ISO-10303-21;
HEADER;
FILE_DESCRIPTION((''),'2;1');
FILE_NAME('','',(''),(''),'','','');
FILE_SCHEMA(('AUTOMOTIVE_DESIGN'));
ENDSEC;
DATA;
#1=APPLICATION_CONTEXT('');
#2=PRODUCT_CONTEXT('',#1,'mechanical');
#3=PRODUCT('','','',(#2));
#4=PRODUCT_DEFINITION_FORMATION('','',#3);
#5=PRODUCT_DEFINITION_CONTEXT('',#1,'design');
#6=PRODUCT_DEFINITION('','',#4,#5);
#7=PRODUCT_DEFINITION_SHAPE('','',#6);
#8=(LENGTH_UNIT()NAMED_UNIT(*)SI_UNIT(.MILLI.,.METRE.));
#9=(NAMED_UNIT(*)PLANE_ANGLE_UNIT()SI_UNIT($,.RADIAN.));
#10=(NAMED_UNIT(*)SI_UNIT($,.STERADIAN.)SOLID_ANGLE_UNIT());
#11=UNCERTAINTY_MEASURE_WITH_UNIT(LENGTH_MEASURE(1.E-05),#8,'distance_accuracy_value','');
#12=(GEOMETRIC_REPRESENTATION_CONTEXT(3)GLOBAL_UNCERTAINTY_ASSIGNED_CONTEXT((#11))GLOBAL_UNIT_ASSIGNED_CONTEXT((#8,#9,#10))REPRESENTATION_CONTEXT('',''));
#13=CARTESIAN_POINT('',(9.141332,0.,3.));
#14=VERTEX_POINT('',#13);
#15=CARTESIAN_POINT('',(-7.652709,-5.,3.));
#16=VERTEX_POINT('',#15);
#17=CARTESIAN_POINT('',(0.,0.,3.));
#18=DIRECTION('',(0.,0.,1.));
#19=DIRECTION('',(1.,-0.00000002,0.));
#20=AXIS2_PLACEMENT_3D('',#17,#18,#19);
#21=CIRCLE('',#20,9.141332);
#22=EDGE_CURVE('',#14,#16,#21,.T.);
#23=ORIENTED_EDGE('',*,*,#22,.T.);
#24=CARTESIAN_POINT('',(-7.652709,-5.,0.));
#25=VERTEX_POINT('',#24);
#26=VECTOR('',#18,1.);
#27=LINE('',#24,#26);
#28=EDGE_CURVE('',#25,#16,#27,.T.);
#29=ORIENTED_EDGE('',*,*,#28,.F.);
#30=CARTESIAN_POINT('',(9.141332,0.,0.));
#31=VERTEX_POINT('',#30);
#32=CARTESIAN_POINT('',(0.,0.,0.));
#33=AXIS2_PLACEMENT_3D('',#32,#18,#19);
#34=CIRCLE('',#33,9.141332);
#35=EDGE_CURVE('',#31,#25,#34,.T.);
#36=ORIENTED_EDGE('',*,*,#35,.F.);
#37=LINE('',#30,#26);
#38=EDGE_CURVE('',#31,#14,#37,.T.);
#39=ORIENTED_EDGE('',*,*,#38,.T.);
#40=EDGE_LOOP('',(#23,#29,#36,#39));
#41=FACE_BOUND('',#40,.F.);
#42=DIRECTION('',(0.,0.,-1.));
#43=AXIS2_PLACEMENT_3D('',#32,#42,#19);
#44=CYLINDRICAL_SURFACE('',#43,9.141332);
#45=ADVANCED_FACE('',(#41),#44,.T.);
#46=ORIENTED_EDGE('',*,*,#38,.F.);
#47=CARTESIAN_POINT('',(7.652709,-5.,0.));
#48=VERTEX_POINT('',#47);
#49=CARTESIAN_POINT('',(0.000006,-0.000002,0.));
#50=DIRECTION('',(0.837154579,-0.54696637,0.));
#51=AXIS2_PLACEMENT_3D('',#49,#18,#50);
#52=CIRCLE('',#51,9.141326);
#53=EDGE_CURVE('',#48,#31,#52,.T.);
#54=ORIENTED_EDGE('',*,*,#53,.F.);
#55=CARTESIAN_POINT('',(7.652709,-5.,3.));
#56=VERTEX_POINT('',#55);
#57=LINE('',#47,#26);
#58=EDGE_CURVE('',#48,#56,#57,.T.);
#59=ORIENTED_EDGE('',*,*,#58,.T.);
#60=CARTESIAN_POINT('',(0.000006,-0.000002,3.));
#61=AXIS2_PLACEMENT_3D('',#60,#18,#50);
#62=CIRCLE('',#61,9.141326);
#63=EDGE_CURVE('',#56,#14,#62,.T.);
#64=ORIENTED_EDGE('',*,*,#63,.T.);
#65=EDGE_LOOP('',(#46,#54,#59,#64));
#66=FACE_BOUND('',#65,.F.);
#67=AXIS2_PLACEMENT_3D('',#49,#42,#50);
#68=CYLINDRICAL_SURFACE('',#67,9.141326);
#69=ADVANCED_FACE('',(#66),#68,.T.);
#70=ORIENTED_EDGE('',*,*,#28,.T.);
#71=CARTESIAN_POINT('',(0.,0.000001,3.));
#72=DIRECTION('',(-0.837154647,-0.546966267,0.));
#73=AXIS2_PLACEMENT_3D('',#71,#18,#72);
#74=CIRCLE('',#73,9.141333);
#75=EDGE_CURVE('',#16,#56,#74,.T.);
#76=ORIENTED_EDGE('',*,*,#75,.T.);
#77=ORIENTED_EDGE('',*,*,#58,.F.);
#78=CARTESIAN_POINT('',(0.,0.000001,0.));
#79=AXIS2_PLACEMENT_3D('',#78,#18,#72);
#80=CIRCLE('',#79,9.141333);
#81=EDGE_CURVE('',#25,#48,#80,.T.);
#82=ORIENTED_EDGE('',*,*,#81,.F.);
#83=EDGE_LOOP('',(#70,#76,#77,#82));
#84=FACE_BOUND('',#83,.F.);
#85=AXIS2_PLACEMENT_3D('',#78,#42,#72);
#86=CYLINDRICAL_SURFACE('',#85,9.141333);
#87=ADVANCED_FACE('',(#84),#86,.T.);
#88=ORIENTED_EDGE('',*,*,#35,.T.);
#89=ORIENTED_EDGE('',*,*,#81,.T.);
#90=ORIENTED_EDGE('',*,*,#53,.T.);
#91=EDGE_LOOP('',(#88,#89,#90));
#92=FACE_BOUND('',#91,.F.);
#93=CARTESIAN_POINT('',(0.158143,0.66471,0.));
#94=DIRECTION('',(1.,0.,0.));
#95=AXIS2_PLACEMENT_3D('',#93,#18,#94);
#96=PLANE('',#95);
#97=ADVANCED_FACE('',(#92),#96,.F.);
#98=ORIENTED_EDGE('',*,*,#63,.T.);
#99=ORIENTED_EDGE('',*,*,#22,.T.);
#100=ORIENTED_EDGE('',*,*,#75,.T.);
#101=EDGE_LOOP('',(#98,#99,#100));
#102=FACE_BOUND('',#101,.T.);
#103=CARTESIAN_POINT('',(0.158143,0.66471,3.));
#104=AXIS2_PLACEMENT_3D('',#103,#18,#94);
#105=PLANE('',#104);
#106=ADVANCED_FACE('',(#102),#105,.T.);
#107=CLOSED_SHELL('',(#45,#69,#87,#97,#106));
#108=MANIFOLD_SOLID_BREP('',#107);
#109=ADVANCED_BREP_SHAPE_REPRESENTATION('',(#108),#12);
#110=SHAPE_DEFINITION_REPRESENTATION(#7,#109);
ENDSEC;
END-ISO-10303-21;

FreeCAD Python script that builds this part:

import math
import FreeCAD as App
import Part
import Sketcher
Q = App.Units.Quantity

doc = App.newDocument("Part")
body = doc.addObject("PartDesign::Body", "Body")

# Sketch on XY plane
sketch1 = body.newObject("Sketcher::SketchObject", "Sketch")
sketch1.AttachmentSupport = (doc.getObject("XY_Plane"), [""])
sketch1.MapMode = "FlatFace"
sketch1.addGeometry([
    Part.ArcOfCircle(Part.Circle(App.Vector(0, 0, 0), App.Vector(0, 0, 1), 9.141332), math.radians(-0.000001), math.radians(213.159133)),
    Part.ArcOfCircle(Part.Circle(App.Vector(0, 0.000001, 0), App.Vector(0, 0, 1), 9.141333), math.radians(-146.840866), math.radians(-33.159134)),
    Part.ArcOfCircle(Part.Circle(App.Vector(0.000006, -0.000002, 0), App.Vector(0, 0, 1), 9.141326), math.radians(-33.159141), math.radians(0.000015)),
], False)
sketch1.addConstraint([
    Sketcher.Constraint("Tangent", 0, 2, 1, 1),
    Sketcher.Constraint("Tangent", 1, 2, 2, 1),
    Sketcher.Constraint("Tangent", 2, 2, 0, 1),
    Sketcher.Constraint("Coincident", 0, 3, -1, 1),
    Sketcher.Constraint("PointOnObject", 2, 2, -1),
    Sketcher.Constraint("Horizontal", 0, 2, 1, 2),
    Sketcher.Constraint("DistanceY", 0, 2, -1, 1, Q("5 mm")),
    Sketcher.Constraint("Radius", 0, Q("9.141332 mm")),
])
pad1 = body.newObject("PartDesign::Pad", "Pad")
pad1.Profile = sketch1
pad1.Length = 3

doc.recompute()
